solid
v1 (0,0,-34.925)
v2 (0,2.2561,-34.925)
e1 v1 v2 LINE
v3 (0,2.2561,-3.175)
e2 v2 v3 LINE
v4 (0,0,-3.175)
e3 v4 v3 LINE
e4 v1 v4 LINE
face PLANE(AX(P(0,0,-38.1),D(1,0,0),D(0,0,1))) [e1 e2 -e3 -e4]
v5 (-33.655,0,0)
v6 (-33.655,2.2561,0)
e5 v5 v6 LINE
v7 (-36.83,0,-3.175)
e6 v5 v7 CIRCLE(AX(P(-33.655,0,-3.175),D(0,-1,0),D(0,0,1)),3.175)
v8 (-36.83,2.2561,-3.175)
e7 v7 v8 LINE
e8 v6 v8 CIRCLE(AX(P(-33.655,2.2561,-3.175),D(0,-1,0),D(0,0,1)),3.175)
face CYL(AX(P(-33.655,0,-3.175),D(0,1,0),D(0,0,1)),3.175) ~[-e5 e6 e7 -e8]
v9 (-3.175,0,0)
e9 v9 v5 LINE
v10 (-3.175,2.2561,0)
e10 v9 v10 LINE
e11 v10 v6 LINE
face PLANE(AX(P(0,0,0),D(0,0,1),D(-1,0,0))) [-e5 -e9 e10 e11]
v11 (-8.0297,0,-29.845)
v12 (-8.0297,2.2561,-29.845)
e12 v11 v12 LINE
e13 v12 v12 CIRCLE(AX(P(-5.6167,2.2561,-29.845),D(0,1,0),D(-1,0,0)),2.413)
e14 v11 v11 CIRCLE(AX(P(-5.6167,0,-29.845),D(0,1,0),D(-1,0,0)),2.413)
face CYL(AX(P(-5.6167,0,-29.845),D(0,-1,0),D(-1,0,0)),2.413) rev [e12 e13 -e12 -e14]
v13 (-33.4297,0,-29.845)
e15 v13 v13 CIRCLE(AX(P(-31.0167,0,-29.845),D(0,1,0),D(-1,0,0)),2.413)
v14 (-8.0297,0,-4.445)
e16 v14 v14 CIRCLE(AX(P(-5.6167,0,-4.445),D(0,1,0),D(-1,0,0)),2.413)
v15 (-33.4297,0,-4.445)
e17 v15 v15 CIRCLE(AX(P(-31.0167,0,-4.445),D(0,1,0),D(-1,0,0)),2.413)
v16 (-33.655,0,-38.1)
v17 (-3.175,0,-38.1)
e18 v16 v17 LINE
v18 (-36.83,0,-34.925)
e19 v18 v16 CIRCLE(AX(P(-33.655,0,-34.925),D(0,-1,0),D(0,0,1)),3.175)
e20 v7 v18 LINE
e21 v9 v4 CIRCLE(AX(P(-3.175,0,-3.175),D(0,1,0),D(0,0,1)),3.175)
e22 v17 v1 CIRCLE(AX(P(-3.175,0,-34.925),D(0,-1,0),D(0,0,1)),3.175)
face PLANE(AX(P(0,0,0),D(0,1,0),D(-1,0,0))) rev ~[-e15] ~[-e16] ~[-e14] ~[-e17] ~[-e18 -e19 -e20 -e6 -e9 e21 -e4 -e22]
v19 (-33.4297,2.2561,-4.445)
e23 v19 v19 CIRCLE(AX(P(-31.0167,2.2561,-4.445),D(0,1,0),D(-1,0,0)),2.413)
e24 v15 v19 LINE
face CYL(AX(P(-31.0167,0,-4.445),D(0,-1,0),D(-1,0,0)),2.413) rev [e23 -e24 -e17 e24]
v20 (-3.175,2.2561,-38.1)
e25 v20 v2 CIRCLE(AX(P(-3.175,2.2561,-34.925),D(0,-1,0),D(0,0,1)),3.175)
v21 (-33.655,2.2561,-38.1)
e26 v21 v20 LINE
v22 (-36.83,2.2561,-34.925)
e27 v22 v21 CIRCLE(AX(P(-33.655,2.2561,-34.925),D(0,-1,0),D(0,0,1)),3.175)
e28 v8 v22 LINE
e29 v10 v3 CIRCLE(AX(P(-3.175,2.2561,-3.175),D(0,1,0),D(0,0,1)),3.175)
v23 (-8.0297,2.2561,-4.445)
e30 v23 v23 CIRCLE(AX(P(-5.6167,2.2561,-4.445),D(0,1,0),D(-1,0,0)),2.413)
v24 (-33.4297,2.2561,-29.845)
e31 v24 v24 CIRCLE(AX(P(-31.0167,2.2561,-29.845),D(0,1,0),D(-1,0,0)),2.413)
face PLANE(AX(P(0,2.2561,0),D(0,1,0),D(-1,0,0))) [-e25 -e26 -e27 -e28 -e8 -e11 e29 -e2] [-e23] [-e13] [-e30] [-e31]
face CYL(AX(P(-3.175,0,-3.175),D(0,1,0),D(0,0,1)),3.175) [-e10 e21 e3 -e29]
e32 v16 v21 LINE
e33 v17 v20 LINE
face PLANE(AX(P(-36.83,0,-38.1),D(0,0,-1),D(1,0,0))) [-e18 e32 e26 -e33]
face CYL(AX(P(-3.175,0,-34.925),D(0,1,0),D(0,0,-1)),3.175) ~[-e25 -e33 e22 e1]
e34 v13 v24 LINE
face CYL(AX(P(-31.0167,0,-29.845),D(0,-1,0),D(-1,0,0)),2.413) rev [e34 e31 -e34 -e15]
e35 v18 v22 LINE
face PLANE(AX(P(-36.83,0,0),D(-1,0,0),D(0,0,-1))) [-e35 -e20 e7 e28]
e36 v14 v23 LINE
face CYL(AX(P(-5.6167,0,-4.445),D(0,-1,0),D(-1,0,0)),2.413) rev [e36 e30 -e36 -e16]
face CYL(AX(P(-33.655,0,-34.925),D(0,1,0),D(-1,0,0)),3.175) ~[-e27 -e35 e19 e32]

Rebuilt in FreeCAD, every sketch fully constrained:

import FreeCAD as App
import Part
import Sketcher
from FreeCAD import Vector
Q = App.Units.Quantity


def edges_at(feature, points):
    """Names of the edges that pass closest to the given points."""
    edges = feature.Shape.Edges
    near = lambda p: min(range(len(edges)), key=lambda i: edges[i].distToShape(Part.Vertex(*p))[0])
    return sorted({f"Edge{near(p) + 1}" for p in points})

doc = App.newDocument("Part")
body = doc.addObject("PartDesign::Body", "Body")

# Sketch on XZ plane
sketch1 = body.newObject("Sketcher::SketchObject", "Sketch")
sketch1.AttachmentSupport = (doc.getObject("XZ_Plane"), [""])
sketch1.MapMode = "FlatFace"
sketch1.addGeometry([
    Part.LineSegment(Vector(-36.83, 0, 0), Vector(0, 0, 0)),  # 0
    Part.LineSegment(Vector(0, 0, 0), Vector(0, -38.1, 0)),  # 1
    Part.LineSegment(Vector(0, -38.1, 0), Vector(-36.83, -38.1, 0)),  # 2
    Part.LineSegment(Vector(-36.83, -38.1, 0), Vector(-36.83, 0, 0)),  # 3
    Part.Circle(Vector(-5.6167, -29.845, 0), Vector(0, 0, 1), 2.413),  # 4
    Part.Circle(Vector(-31.0167, -29.845, 0), Vector(0, 0, 1), 2.413),  # 5
    Part.Circle(Vector(-5.6167, -4.445, 0), Vector(0, 0, 1), 2.413),  # 6
    Part.Circle(Vector(-31.0167, -4.445, 0), Vector(0, 0, 1), 2.413),  # 7
], False)
sketch1.addConstraint([
    Sketcher.Constraint("Coincident", 0, 2, 1, 1),
    Sketcher.Constraint("Coincident", 1, 2, 2, 1),
    Sketcher.Constraint("Coincident", 2, 2, 3, 1),
    Sketcher.Constraint("Coincident", 3, 2, 0, 1),
    Sketcher.Constraint("Horizontal", 0),
    Sketcher.Constraint("Vertical", 1),
    Sketcher.Constraint("Horizontal", 2),
    Sketcher.Constraint("Vertical", 3),
    Sketcher.Constraint("Coincident", 0, 2, -1, 1),
    Sketcher.Constraint("Equal", 4, 5),
    Sketcher.Constraint("Equal", 5, 6),
    Sketcher.Constraint("Equal", 6, 7),
    Sketcher.Constraint("Horizontal", 4, 3, 5, 3),
    Sketcher.Constraint("Horizontal", 6, 3, 7, 3),
    Sketcher.Constraint("Vertical", 4, 3, 6, 3),
    Sketcher.Constraint("Vertical", 5, 3, 7, 3),
    Sketcher.Constraint("Diameter", 4, Q("0.19 in")),
    Sketcher.Constraint("DistanceY", 1, 2, 1, 1, Q("1.5 in")),
    Sketcher.Constraint("DistanceX", 5, 3, 4, 3, Q("1 in")),
    Sketcher.Constraint("DistanceY", 4, 3, 6, 3, Q("1 in")),
    Sketcher.Constraint("DistanceX", 0, 1, 0, 2, Q("1.45 in")),
    Sketcher.Constraint("DistanceY", 6, 3, -1, 1, Q("0.175 in")),
    Sketcher.Constraint("DistanceX", 2, 2, 5, 3, Q("5.8133 mm")),
])
pad1 = body.newObject("PartDesign::Pad", "Pad")
pad1.Profile = sketch1
pad1.Length = 2.2561
pad1.Reversed = True
doc.recompute()

fillet = body.newObject("PartDesign::Fillet", "Fillet")
fillet.Base = (pad1, edges_at(pad1, [
    (0, 1.128, 0),
    (-36.83, 1.128, 0),
    (0, 1.128, -38.1),
    (-36.83, 1.128, -38.1),
]))
fillet.Radius = Q("0.125 in")

doc.recompute()
